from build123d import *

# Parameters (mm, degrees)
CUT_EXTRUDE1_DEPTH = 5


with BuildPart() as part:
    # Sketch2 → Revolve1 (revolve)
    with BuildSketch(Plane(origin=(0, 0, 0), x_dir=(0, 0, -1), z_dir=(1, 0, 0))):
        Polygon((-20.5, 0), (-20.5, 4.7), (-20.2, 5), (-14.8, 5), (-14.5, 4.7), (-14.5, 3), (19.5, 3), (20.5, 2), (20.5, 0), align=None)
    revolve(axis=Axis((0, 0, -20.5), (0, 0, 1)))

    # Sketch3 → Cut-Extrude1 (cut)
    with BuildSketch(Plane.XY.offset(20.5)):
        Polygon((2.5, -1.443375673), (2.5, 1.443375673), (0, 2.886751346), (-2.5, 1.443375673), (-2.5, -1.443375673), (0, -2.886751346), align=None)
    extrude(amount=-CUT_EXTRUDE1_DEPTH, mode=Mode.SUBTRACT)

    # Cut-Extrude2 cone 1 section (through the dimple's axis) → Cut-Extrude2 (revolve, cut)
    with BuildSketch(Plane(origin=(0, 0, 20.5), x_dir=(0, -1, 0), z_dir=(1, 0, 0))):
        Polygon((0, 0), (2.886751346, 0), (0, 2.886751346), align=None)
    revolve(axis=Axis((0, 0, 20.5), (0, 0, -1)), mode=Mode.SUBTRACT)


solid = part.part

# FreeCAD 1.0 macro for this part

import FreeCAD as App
import Part
import Sketcher
Q = App.Units.Quantity

doc = App.newDocument("Part")
body = doc.addObject("PartDesign::Body", "Body")

# Sketch on YZ plane
sketch1 = body.newObject("Sketcher::SketchObject", "Sketch")
sketch1.AttachmentSupport = (doc.getObject("YZ_Plane"), [""])
sketch1.MapMode = "FlatFace"
sketch1.addGeometry([
    Part.LineSegment(App.Vector(4.7, 20.5, 0), App.Vector(0, 20.5, 0)),  # 0
    Part.LineSegment(App.Vector(0, 20.5, 0), App.Vector(0, -20.5, 0)),  # 1
    Part.LineSegment(App.Vector(0, -20.5, 0), App.Vector(2, -20.5, 0)),  # 2
    Part.LineSegment(App.Vector(2, -20.5, 0), App.Vector(3, -19.5, 0)),  # 3
    Part.LineSegment(App.Vector(3, -19.5, 0), App.Vector(3, 14.5, 0)),  # 4
    Part.LineSegment(App.Vector(3, 14.5, 0), App.Vector(4.7, 14.5, 0)),  # 5
    Part.LineSegment(App.Vector(4.7, 14.5, 0), App.Vector(5, 14.8, 0)),  # 6
    Part.LineSegment(App.Vector(5, 14.8, 0), App.Vector(5, 20.2, 0)),  # 7
    Part.LineSegment(App.Vector(5, 20.2, 0), App.Vector(4.7, 20.5, 0)),  # 8
], False)
sketch1.addConstraint([
    Sketcher.Constraint("Coincident", 0, 2, 1, 1),
    Sketcher.Constraint("Coincident", 1, 2, 2, 1),
    Sketcher.Constraint("Coincident", 2, 2, 3, 1),
    Sketcher.Constraint("Coincident", 3, 2, 4, 1),
    Sketcher.Constraint("Coincident", 4, 2, 5, 1),
    Sketcher.Constraint("Coincident", 5, 2, 6, 1),
    Sketcher.Constraint("Coincident", 6, 2, 7, 1),
    Sketcher.Constraint("Coincident", 7, 2, 8, 1),
    Sketcher.Constraint("Coincident", 8, 2, 0, 1),
    Sketcher.Constraint("Horizontal", 0),
    Sketcher.Constraint("Vertical", 1),
    Sketcher.Constraint("Horizontal", 2),
    Sketcher.Constraint("Vertical", 4),
    Sketcher.Constraint("Horizontal", 5),
    Sketcher.Constraint("Vertical", 7),
    Sketcher.Constraint("Symmetric", 0, 2, 1, 2, -1, 1),
    Sketcher.Constraint("Parallel", 3, 6),
    Sketcher.Constraint("Perpendicular", 6, 8),
    Sketcher.Constraint("Vertical", 5, 2, 8, 2),
    Sketcher.Constraint("Equal", 6, 8),
    Sketcher.Constraint("DistanceX", 2, 1, 2, 2, Q("2 mm")),
    Sketcher.Constraint("DistanceY", 1, 2, 1, 1, Q("41 mm")),
    Sketcher.Constraint("DistanceY", 4, 1, 4, 2, Q("34 mm")),
    Sketcher.Constraint("DistanceX", 0, 2, 0, 1, Q("4.7 mm")),
    Sketcher.Constraint("DistanceX", 5, 1, 5, 2, Q("1.7 mm")),
    Sketcher.Constraint("DistanceY", 7, 1, 7, 2, Q("5.4 mm")),
])
revolution = body.newObject("PartDesign::Revolution", "Revolution")
revolution.Profile = sketch1
revolution.ReferenceAxis = (sketch1, ["V_Axis"])
revolution.Angle = 360

# Sketch on XY plane
sketch2 = body.newObject("Sketcher::SketchObject", "Sketch001")
sketch2.AttachmentSupport = (doc.getObject("XY_Plane"), [""])
sketch2.MapMode = "FlatFace"
sketch2.AttachmentOffset = App.Placement(App.Vector(0, 0, 20.5), App.Rotation())
sketch2.addGeometry([
    Part.LineSegment(App.Vector(2.5, -1.4, 0), App.Vector(2.5, 1.4, 0)),  # 0
    Part.LineSegment(App.Vector(2.5, 1.4, 0), App.Vector(0, 2.9, 0)),  # 1
    Part.LineSegment(App.Vector(0, 2.9, 0), App.Vector(-2.5, 1.4, 0)),  # 2
    Part.LineSegment(App.Vector(-2.5, 1.4, 0), App.Vector(-2.5, -1.4, 0)),  # 3
    Part.LineSegment(App.Vector(-2.5, -1.4, 0), App.Vector(0, -2.9, 0)),  # 4
    Part.LineSegment(App.Vector(0, -2.9, 0), App.Vector(2.5, -1.4, 0)),  # 5
], False)
sketch2.addConstraint([
    Sketcher.Constraint("Coincident", 0, 2, 1, 1),
    Sketcher.Constraint("Coincident", 1, 2, 2, 1),
    Sketcher.Constraint("Coincident", 2, 2, 3, 1),
    Sketcher.Constraint("Coincident", 3, 2, 4, 1),
    Sketcher.Constraint("Coincident", 4, 2, 5, 1),
    Sketcher.Constraint("Coincident", 5, 2, 0, 1),
    Sketcher.Constraint("Vertical", 0),
    Sketcher.Constraint("Vertical", 3),
    Sketcher.Constraint("Symmetric", 0, 2, 3, 2, -1, 1),
    Sketcher.Constraint("Symmetric", 1, 2, 4, 2, -1, 1),
    Sketcher.Constraint("PointOnObject", 1, 2, -2),
    Sketcher.Constraint("Parallel", 2, 5),
    Sketcher.Constraint("Horizontal", 0, 2, 2, 2),
    Sketcher.Constraint("Angle", 1, Q("150 deg")),
    Sketcher.Constraint("DistanceX", 2, 2, 0, 2, Q("5 mm")),
    Sketcher.Constraint("DistanceY", 0, 1, 0, 2, Q("2.886751 mm")),
])
pocket1 = body.newObject("PartDesign::Pocket", "Pocket")
pocket1.Profile = sketch2
pocket1.Length = 5

# Sketch on YZ plane
sketch3 = body.newObject("Sketcher::SketchObject", "Sketch002")
sketch3.AttachmentSupport = (doc.getObject("YZ_Plane"), [""])
sketch3.MapMode = "FlatFace"
sketch3.addGeometry([
    Part.LineSegment(App.Vector(0, 20.5, 0), App.Vector(-2.9, 20.5, 0)),
    Part.LineSegment(App.Vector(-2.9, 20.5, 0), App.Vector(0, 17.6, 0)),
    Part.LineSegment(App.Vector(0, 17.6, 0), App.Vector(0, 20.5, 0)),
], False)
sketch3.addConstraint([
    Sketcher.Constraint("Coincident", 0, 2, 1, 1),
    Sketcher.Constraint("Coincident", 1, 2, 2, 1),
    Sketcher.Constraint("Coincident", 2, 2, 0, 1),
    Sketcher.Constraint("Horizontal", 0),
    Sketcher.Constraint("Vertical", 2),
    Sketcher.Constraint("PointOnObject", 1, 2, -2),
    Sketcher.Constraint("Equal", 0, 2),
    Sketcher.Constraint("DistanceY", -1, 1, 0, 2, Q("20.5 mm")),
    Sketcher.Constraint("DistanceX", 0, 2, 0, 1, Q("2.886751 mm")),
])
groove = body.newObject("PartDesign::Groove", "Groove")
groove.Profile = sketch3
groove.ReferenceAxis = (sketch3, ["V_Axis"])
groove.Angle = 360

doc.recompute()
